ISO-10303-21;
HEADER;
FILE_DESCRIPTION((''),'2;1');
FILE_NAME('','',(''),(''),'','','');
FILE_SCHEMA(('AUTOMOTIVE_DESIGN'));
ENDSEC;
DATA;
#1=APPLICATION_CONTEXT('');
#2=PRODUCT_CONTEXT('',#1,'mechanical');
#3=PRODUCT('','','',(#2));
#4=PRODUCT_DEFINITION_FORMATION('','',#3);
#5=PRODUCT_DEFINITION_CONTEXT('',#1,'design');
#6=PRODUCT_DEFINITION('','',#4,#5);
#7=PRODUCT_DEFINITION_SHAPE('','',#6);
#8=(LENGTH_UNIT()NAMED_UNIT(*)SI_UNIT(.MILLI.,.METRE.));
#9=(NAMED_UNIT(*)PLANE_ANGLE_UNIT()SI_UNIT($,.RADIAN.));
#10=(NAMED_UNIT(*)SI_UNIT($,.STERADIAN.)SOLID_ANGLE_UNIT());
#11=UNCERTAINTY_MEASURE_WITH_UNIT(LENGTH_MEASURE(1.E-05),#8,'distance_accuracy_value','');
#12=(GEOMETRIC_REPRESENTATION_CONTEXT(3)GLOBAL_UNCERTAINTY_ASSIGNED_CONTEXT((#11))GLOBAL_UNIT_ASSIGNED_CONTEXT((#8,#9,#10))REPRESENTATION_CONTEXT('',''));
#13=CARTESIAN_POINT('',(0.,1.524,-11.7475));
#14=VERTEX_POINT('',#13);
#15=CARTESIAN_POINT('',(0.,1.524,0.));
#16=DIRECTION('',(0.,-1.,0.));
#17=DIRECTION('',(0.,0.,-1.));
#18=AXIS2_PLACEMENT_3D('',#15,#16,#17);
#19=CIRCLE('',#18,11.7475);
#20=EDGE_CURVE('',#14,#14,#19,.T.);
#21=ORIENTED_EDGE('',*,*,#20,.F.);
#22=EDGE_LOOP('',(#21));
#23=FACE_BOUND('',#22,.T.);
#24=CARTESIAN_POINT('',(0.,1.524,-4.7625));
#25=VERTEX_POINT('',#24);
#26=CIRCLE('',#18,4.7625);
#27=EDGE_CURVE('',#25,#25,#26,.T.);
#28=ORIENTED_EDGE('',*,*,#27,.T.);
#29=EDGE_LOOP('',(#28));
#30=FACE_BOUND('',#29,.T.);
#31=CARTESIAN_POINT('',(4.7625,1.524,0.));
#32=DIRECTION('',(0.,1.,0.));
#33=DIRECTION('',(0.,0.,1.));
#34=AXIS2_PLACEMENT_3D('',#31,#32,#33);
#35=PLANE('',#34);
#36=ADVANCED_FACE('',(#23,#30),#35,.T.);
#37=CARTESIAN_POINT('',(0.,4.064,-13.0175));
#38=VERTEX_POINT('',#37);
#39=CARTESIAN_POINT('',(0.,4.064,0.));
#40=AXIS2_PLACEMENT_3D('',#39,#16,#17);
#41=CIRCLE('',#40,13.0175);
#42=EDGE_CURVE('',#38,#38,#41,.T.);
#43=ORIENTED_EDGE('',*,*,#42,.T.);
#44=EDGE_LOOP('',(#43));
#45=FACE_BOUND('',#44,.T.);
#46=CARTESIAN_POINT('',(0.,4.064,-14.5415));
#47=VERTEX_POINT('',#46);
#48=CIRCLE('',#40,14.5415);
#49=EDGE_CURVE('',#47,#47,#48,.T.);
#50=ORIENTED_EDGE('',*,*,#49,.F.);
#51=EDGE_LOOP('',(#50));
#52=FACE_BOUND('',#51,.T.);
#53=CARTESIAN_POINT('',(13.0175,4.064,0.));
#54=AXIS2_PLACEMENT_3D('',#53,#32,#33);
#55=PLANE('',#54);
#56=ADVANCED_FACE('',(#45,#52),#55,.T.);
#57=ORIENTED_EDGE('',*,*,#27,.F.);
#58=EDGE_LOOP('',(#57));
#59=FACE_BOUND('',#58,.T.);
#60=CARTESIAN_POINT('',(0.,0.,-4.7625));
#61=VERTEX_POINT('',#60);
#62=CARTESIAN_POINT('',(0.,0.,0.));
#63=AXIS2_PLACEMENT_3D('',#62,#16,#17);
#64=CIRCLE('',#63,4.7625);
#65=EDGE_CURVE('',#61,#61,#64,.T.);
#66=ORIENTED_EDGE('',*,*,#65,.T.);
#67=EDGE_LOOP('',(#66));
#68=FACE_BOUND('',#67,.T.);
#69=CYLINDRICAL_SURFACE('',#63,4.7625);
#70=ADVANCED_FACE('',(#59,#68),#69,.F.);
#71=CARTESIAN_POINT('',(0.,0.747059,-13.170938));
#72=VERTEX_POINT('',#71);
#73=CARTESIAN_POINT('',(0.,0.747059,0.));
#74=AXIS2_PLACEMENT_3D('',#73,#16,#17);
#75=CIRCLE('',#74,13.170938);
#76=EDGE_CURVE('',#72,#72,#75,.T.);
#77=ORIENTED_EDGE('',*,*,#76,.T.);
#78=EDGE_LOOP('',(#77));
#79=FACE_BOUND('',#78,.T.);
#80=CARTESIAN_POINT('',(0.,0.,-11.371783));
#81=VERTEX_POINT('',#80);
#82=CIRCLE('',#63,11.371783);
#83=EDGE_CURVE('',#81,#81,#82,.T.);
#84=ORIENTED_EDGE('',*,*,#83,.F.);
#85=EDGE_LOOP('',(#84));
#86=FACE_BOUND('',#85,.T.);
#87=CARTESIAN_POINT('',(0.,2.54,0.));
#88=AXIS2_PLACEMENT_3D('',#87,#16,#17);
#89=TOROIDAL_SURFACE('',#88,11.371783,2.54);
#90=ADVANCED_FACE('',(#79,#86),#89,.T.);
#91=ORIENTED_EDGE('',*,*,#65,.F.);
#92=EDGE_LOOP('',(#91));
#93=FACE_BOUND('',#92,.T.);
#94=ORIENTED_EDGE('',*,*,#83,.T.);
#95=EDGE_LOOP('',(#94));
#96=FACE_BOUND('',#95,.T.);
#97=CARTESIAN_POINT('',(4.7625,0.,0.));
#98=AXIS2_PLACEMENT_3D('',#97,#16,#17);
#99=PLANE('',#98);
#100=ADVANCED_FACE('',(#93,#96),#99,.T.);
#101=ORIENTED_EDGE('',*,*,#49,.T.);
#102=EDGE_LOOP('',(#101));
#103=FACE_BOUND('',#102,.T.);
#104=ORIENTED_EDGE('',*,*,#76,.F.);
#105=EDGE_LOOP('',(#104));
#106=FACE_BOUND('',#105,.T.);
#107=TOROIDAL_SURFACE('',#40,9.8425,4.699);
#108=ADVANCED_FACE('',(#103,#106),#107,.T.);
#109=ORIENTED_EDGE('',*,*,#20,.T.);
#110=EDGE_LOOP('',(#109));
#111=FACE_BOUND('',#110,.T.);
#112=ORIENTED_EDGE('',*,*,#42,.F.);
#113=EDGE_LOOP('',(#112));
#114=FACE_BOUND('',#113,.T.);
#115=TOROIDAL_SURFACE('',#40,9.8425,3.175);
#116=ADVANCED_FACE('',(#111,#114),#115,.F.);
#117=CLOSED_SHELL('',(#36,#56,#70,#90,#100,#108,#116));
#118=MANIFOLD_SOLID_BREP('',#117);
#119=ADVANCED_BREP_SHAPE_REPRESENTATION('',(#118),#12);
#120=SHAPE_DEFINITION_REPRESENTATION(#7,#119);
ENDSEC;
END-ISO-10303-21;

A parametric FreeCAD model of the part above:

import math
import FreeCAD as App
import Part
import Sketcher
from FreeCAD import Vector
Q = App.Units.Quantity

doc = App.newDocument("Part")
body = doc.addObject("PartDesign::Body", "Body")

# Sketch on XY plane
sketch1 = body.newObject("Sketcher::SketchObject", "Sketch")
sketch1.AttachmentSupport = (doc.getObject("XY_Plane"), [""])
sketch1.MapMode = "FlatFace"
sketch1.addGeometry(Part.LineSegment(Vector(4.8, 0, 0), Vector(11.4, 0, 0)), False)
sketch1.addGeometry(Part.ArcOfCircle(Part.Circle(Vector(11.4, 2.5, 0), Vector(0, 0, 1), 2.5), math.radians(-90), math.radians(-45)), False)
sketch1.addGeometry(Part.ArcOfCircle(Part.Circle(Vector(9.8, 4.1, 0), Vector(0, 0, 1), 4.7), math.radians(-45), math.radians(0)), False)
sketch1.addGeometry(Part.LineSegment(Vector(14.5, 4.1, 0), Vector(13, 4.1, 0)), False)
sketch1.addGeometry(Part.ArcOfCircle(Part.Circle(Vector(9.8, 4.1, 0), Vector(0, 0, 1), 3.2), math.radians(-53), math.radians(0)), False)
sketch1.addGeometry(Part.LineSegment(Vector(11.7, 1.5, 0), Vector(4.8, 1.5, 0)), False)
sketch1.addGeometry(Part.LineSegment(Vector(4.8, 1.5, 0), Vector(4.8, 0, 0)), False)
sketch1.addConstraint(Sketcher.Constraint("Tangent", 0, 2, 1, 1))
sketch1.addConstraint(Sketcher.Constraint("Tangent", 1, 2, 2, 1))
sketch1.addConstraint(Sketcher.Constraint("Coincident", 2, 2, 3, 1))
sketch1.addConstraint(Sketcher.Constraint("Coincident", 3, 2, 4, 2))
sketch1.addConstraint(Sketcher.Constraint("Coincident", 4, 1, 5, 1))
sketch1.addConstraint(Sketcher.Constraint("Coincident", 5, 2, 6, 1))
sketch1.addConstraint(Sketcher.Constraint("Coincident", 6, 2, 0, 1))
sketch1.addConstraint(Sketcher.Constraint("Horizontal", 0))
sketch1.addConstraint(Sketcher.Constraint("Horizontal", 3))
sketch1.addConstraint(Sketcher.Constraint("Horizontal", 5))
sketch1.addConstraint(Sketcher.Constraint("Vertical", 6))
sketch1.addConstraint(Sketcher.Constraint("Coincident", 4, 3, 2, 3))
sketch1.addConstraint(Sketcher.Constraint("PointOnObject", 0, 2, -1))
sketch1.addConstraint(Sketcher.Constraint("Horizontal", 4, 3, 2, 2))
sketch1.addConstraint(Sketcher.Constraint("Equal", 3, 6))
sketch1.addConstraint(Sketcher.Constraint("Radius", 1, Q("0.1 in")))
sketch1.addConstraint(Sketcher.Constraint("Radius", 2, Q("0.185 in")))
sketch1.addConstraint(Sketcher.Constraint("Radius", 4, Q("0.125 in")))
sketch1.addConstraint(Sketcher.Constraint("DistanceY", 4, 1, 3, 2, Q("0.1 in")))
sketch1.addConstraint(Sketcher.Constraint("DistanceX", 5, 2, 4, 3, Q("0.2 in")))
sketch1.addConstraint(Sketcher.Constraint("DistanceX", -1, 1, 5, 2, Q("0.1875 in")))
revolution = body.newObject("PartDesign::Revolution", "Revolution")
revolution.Profile = sketch1
revolution.ReferenceAxis = (sketch1, ["V_Axis"])
revolution.Angle = 360

doc.recompute()
